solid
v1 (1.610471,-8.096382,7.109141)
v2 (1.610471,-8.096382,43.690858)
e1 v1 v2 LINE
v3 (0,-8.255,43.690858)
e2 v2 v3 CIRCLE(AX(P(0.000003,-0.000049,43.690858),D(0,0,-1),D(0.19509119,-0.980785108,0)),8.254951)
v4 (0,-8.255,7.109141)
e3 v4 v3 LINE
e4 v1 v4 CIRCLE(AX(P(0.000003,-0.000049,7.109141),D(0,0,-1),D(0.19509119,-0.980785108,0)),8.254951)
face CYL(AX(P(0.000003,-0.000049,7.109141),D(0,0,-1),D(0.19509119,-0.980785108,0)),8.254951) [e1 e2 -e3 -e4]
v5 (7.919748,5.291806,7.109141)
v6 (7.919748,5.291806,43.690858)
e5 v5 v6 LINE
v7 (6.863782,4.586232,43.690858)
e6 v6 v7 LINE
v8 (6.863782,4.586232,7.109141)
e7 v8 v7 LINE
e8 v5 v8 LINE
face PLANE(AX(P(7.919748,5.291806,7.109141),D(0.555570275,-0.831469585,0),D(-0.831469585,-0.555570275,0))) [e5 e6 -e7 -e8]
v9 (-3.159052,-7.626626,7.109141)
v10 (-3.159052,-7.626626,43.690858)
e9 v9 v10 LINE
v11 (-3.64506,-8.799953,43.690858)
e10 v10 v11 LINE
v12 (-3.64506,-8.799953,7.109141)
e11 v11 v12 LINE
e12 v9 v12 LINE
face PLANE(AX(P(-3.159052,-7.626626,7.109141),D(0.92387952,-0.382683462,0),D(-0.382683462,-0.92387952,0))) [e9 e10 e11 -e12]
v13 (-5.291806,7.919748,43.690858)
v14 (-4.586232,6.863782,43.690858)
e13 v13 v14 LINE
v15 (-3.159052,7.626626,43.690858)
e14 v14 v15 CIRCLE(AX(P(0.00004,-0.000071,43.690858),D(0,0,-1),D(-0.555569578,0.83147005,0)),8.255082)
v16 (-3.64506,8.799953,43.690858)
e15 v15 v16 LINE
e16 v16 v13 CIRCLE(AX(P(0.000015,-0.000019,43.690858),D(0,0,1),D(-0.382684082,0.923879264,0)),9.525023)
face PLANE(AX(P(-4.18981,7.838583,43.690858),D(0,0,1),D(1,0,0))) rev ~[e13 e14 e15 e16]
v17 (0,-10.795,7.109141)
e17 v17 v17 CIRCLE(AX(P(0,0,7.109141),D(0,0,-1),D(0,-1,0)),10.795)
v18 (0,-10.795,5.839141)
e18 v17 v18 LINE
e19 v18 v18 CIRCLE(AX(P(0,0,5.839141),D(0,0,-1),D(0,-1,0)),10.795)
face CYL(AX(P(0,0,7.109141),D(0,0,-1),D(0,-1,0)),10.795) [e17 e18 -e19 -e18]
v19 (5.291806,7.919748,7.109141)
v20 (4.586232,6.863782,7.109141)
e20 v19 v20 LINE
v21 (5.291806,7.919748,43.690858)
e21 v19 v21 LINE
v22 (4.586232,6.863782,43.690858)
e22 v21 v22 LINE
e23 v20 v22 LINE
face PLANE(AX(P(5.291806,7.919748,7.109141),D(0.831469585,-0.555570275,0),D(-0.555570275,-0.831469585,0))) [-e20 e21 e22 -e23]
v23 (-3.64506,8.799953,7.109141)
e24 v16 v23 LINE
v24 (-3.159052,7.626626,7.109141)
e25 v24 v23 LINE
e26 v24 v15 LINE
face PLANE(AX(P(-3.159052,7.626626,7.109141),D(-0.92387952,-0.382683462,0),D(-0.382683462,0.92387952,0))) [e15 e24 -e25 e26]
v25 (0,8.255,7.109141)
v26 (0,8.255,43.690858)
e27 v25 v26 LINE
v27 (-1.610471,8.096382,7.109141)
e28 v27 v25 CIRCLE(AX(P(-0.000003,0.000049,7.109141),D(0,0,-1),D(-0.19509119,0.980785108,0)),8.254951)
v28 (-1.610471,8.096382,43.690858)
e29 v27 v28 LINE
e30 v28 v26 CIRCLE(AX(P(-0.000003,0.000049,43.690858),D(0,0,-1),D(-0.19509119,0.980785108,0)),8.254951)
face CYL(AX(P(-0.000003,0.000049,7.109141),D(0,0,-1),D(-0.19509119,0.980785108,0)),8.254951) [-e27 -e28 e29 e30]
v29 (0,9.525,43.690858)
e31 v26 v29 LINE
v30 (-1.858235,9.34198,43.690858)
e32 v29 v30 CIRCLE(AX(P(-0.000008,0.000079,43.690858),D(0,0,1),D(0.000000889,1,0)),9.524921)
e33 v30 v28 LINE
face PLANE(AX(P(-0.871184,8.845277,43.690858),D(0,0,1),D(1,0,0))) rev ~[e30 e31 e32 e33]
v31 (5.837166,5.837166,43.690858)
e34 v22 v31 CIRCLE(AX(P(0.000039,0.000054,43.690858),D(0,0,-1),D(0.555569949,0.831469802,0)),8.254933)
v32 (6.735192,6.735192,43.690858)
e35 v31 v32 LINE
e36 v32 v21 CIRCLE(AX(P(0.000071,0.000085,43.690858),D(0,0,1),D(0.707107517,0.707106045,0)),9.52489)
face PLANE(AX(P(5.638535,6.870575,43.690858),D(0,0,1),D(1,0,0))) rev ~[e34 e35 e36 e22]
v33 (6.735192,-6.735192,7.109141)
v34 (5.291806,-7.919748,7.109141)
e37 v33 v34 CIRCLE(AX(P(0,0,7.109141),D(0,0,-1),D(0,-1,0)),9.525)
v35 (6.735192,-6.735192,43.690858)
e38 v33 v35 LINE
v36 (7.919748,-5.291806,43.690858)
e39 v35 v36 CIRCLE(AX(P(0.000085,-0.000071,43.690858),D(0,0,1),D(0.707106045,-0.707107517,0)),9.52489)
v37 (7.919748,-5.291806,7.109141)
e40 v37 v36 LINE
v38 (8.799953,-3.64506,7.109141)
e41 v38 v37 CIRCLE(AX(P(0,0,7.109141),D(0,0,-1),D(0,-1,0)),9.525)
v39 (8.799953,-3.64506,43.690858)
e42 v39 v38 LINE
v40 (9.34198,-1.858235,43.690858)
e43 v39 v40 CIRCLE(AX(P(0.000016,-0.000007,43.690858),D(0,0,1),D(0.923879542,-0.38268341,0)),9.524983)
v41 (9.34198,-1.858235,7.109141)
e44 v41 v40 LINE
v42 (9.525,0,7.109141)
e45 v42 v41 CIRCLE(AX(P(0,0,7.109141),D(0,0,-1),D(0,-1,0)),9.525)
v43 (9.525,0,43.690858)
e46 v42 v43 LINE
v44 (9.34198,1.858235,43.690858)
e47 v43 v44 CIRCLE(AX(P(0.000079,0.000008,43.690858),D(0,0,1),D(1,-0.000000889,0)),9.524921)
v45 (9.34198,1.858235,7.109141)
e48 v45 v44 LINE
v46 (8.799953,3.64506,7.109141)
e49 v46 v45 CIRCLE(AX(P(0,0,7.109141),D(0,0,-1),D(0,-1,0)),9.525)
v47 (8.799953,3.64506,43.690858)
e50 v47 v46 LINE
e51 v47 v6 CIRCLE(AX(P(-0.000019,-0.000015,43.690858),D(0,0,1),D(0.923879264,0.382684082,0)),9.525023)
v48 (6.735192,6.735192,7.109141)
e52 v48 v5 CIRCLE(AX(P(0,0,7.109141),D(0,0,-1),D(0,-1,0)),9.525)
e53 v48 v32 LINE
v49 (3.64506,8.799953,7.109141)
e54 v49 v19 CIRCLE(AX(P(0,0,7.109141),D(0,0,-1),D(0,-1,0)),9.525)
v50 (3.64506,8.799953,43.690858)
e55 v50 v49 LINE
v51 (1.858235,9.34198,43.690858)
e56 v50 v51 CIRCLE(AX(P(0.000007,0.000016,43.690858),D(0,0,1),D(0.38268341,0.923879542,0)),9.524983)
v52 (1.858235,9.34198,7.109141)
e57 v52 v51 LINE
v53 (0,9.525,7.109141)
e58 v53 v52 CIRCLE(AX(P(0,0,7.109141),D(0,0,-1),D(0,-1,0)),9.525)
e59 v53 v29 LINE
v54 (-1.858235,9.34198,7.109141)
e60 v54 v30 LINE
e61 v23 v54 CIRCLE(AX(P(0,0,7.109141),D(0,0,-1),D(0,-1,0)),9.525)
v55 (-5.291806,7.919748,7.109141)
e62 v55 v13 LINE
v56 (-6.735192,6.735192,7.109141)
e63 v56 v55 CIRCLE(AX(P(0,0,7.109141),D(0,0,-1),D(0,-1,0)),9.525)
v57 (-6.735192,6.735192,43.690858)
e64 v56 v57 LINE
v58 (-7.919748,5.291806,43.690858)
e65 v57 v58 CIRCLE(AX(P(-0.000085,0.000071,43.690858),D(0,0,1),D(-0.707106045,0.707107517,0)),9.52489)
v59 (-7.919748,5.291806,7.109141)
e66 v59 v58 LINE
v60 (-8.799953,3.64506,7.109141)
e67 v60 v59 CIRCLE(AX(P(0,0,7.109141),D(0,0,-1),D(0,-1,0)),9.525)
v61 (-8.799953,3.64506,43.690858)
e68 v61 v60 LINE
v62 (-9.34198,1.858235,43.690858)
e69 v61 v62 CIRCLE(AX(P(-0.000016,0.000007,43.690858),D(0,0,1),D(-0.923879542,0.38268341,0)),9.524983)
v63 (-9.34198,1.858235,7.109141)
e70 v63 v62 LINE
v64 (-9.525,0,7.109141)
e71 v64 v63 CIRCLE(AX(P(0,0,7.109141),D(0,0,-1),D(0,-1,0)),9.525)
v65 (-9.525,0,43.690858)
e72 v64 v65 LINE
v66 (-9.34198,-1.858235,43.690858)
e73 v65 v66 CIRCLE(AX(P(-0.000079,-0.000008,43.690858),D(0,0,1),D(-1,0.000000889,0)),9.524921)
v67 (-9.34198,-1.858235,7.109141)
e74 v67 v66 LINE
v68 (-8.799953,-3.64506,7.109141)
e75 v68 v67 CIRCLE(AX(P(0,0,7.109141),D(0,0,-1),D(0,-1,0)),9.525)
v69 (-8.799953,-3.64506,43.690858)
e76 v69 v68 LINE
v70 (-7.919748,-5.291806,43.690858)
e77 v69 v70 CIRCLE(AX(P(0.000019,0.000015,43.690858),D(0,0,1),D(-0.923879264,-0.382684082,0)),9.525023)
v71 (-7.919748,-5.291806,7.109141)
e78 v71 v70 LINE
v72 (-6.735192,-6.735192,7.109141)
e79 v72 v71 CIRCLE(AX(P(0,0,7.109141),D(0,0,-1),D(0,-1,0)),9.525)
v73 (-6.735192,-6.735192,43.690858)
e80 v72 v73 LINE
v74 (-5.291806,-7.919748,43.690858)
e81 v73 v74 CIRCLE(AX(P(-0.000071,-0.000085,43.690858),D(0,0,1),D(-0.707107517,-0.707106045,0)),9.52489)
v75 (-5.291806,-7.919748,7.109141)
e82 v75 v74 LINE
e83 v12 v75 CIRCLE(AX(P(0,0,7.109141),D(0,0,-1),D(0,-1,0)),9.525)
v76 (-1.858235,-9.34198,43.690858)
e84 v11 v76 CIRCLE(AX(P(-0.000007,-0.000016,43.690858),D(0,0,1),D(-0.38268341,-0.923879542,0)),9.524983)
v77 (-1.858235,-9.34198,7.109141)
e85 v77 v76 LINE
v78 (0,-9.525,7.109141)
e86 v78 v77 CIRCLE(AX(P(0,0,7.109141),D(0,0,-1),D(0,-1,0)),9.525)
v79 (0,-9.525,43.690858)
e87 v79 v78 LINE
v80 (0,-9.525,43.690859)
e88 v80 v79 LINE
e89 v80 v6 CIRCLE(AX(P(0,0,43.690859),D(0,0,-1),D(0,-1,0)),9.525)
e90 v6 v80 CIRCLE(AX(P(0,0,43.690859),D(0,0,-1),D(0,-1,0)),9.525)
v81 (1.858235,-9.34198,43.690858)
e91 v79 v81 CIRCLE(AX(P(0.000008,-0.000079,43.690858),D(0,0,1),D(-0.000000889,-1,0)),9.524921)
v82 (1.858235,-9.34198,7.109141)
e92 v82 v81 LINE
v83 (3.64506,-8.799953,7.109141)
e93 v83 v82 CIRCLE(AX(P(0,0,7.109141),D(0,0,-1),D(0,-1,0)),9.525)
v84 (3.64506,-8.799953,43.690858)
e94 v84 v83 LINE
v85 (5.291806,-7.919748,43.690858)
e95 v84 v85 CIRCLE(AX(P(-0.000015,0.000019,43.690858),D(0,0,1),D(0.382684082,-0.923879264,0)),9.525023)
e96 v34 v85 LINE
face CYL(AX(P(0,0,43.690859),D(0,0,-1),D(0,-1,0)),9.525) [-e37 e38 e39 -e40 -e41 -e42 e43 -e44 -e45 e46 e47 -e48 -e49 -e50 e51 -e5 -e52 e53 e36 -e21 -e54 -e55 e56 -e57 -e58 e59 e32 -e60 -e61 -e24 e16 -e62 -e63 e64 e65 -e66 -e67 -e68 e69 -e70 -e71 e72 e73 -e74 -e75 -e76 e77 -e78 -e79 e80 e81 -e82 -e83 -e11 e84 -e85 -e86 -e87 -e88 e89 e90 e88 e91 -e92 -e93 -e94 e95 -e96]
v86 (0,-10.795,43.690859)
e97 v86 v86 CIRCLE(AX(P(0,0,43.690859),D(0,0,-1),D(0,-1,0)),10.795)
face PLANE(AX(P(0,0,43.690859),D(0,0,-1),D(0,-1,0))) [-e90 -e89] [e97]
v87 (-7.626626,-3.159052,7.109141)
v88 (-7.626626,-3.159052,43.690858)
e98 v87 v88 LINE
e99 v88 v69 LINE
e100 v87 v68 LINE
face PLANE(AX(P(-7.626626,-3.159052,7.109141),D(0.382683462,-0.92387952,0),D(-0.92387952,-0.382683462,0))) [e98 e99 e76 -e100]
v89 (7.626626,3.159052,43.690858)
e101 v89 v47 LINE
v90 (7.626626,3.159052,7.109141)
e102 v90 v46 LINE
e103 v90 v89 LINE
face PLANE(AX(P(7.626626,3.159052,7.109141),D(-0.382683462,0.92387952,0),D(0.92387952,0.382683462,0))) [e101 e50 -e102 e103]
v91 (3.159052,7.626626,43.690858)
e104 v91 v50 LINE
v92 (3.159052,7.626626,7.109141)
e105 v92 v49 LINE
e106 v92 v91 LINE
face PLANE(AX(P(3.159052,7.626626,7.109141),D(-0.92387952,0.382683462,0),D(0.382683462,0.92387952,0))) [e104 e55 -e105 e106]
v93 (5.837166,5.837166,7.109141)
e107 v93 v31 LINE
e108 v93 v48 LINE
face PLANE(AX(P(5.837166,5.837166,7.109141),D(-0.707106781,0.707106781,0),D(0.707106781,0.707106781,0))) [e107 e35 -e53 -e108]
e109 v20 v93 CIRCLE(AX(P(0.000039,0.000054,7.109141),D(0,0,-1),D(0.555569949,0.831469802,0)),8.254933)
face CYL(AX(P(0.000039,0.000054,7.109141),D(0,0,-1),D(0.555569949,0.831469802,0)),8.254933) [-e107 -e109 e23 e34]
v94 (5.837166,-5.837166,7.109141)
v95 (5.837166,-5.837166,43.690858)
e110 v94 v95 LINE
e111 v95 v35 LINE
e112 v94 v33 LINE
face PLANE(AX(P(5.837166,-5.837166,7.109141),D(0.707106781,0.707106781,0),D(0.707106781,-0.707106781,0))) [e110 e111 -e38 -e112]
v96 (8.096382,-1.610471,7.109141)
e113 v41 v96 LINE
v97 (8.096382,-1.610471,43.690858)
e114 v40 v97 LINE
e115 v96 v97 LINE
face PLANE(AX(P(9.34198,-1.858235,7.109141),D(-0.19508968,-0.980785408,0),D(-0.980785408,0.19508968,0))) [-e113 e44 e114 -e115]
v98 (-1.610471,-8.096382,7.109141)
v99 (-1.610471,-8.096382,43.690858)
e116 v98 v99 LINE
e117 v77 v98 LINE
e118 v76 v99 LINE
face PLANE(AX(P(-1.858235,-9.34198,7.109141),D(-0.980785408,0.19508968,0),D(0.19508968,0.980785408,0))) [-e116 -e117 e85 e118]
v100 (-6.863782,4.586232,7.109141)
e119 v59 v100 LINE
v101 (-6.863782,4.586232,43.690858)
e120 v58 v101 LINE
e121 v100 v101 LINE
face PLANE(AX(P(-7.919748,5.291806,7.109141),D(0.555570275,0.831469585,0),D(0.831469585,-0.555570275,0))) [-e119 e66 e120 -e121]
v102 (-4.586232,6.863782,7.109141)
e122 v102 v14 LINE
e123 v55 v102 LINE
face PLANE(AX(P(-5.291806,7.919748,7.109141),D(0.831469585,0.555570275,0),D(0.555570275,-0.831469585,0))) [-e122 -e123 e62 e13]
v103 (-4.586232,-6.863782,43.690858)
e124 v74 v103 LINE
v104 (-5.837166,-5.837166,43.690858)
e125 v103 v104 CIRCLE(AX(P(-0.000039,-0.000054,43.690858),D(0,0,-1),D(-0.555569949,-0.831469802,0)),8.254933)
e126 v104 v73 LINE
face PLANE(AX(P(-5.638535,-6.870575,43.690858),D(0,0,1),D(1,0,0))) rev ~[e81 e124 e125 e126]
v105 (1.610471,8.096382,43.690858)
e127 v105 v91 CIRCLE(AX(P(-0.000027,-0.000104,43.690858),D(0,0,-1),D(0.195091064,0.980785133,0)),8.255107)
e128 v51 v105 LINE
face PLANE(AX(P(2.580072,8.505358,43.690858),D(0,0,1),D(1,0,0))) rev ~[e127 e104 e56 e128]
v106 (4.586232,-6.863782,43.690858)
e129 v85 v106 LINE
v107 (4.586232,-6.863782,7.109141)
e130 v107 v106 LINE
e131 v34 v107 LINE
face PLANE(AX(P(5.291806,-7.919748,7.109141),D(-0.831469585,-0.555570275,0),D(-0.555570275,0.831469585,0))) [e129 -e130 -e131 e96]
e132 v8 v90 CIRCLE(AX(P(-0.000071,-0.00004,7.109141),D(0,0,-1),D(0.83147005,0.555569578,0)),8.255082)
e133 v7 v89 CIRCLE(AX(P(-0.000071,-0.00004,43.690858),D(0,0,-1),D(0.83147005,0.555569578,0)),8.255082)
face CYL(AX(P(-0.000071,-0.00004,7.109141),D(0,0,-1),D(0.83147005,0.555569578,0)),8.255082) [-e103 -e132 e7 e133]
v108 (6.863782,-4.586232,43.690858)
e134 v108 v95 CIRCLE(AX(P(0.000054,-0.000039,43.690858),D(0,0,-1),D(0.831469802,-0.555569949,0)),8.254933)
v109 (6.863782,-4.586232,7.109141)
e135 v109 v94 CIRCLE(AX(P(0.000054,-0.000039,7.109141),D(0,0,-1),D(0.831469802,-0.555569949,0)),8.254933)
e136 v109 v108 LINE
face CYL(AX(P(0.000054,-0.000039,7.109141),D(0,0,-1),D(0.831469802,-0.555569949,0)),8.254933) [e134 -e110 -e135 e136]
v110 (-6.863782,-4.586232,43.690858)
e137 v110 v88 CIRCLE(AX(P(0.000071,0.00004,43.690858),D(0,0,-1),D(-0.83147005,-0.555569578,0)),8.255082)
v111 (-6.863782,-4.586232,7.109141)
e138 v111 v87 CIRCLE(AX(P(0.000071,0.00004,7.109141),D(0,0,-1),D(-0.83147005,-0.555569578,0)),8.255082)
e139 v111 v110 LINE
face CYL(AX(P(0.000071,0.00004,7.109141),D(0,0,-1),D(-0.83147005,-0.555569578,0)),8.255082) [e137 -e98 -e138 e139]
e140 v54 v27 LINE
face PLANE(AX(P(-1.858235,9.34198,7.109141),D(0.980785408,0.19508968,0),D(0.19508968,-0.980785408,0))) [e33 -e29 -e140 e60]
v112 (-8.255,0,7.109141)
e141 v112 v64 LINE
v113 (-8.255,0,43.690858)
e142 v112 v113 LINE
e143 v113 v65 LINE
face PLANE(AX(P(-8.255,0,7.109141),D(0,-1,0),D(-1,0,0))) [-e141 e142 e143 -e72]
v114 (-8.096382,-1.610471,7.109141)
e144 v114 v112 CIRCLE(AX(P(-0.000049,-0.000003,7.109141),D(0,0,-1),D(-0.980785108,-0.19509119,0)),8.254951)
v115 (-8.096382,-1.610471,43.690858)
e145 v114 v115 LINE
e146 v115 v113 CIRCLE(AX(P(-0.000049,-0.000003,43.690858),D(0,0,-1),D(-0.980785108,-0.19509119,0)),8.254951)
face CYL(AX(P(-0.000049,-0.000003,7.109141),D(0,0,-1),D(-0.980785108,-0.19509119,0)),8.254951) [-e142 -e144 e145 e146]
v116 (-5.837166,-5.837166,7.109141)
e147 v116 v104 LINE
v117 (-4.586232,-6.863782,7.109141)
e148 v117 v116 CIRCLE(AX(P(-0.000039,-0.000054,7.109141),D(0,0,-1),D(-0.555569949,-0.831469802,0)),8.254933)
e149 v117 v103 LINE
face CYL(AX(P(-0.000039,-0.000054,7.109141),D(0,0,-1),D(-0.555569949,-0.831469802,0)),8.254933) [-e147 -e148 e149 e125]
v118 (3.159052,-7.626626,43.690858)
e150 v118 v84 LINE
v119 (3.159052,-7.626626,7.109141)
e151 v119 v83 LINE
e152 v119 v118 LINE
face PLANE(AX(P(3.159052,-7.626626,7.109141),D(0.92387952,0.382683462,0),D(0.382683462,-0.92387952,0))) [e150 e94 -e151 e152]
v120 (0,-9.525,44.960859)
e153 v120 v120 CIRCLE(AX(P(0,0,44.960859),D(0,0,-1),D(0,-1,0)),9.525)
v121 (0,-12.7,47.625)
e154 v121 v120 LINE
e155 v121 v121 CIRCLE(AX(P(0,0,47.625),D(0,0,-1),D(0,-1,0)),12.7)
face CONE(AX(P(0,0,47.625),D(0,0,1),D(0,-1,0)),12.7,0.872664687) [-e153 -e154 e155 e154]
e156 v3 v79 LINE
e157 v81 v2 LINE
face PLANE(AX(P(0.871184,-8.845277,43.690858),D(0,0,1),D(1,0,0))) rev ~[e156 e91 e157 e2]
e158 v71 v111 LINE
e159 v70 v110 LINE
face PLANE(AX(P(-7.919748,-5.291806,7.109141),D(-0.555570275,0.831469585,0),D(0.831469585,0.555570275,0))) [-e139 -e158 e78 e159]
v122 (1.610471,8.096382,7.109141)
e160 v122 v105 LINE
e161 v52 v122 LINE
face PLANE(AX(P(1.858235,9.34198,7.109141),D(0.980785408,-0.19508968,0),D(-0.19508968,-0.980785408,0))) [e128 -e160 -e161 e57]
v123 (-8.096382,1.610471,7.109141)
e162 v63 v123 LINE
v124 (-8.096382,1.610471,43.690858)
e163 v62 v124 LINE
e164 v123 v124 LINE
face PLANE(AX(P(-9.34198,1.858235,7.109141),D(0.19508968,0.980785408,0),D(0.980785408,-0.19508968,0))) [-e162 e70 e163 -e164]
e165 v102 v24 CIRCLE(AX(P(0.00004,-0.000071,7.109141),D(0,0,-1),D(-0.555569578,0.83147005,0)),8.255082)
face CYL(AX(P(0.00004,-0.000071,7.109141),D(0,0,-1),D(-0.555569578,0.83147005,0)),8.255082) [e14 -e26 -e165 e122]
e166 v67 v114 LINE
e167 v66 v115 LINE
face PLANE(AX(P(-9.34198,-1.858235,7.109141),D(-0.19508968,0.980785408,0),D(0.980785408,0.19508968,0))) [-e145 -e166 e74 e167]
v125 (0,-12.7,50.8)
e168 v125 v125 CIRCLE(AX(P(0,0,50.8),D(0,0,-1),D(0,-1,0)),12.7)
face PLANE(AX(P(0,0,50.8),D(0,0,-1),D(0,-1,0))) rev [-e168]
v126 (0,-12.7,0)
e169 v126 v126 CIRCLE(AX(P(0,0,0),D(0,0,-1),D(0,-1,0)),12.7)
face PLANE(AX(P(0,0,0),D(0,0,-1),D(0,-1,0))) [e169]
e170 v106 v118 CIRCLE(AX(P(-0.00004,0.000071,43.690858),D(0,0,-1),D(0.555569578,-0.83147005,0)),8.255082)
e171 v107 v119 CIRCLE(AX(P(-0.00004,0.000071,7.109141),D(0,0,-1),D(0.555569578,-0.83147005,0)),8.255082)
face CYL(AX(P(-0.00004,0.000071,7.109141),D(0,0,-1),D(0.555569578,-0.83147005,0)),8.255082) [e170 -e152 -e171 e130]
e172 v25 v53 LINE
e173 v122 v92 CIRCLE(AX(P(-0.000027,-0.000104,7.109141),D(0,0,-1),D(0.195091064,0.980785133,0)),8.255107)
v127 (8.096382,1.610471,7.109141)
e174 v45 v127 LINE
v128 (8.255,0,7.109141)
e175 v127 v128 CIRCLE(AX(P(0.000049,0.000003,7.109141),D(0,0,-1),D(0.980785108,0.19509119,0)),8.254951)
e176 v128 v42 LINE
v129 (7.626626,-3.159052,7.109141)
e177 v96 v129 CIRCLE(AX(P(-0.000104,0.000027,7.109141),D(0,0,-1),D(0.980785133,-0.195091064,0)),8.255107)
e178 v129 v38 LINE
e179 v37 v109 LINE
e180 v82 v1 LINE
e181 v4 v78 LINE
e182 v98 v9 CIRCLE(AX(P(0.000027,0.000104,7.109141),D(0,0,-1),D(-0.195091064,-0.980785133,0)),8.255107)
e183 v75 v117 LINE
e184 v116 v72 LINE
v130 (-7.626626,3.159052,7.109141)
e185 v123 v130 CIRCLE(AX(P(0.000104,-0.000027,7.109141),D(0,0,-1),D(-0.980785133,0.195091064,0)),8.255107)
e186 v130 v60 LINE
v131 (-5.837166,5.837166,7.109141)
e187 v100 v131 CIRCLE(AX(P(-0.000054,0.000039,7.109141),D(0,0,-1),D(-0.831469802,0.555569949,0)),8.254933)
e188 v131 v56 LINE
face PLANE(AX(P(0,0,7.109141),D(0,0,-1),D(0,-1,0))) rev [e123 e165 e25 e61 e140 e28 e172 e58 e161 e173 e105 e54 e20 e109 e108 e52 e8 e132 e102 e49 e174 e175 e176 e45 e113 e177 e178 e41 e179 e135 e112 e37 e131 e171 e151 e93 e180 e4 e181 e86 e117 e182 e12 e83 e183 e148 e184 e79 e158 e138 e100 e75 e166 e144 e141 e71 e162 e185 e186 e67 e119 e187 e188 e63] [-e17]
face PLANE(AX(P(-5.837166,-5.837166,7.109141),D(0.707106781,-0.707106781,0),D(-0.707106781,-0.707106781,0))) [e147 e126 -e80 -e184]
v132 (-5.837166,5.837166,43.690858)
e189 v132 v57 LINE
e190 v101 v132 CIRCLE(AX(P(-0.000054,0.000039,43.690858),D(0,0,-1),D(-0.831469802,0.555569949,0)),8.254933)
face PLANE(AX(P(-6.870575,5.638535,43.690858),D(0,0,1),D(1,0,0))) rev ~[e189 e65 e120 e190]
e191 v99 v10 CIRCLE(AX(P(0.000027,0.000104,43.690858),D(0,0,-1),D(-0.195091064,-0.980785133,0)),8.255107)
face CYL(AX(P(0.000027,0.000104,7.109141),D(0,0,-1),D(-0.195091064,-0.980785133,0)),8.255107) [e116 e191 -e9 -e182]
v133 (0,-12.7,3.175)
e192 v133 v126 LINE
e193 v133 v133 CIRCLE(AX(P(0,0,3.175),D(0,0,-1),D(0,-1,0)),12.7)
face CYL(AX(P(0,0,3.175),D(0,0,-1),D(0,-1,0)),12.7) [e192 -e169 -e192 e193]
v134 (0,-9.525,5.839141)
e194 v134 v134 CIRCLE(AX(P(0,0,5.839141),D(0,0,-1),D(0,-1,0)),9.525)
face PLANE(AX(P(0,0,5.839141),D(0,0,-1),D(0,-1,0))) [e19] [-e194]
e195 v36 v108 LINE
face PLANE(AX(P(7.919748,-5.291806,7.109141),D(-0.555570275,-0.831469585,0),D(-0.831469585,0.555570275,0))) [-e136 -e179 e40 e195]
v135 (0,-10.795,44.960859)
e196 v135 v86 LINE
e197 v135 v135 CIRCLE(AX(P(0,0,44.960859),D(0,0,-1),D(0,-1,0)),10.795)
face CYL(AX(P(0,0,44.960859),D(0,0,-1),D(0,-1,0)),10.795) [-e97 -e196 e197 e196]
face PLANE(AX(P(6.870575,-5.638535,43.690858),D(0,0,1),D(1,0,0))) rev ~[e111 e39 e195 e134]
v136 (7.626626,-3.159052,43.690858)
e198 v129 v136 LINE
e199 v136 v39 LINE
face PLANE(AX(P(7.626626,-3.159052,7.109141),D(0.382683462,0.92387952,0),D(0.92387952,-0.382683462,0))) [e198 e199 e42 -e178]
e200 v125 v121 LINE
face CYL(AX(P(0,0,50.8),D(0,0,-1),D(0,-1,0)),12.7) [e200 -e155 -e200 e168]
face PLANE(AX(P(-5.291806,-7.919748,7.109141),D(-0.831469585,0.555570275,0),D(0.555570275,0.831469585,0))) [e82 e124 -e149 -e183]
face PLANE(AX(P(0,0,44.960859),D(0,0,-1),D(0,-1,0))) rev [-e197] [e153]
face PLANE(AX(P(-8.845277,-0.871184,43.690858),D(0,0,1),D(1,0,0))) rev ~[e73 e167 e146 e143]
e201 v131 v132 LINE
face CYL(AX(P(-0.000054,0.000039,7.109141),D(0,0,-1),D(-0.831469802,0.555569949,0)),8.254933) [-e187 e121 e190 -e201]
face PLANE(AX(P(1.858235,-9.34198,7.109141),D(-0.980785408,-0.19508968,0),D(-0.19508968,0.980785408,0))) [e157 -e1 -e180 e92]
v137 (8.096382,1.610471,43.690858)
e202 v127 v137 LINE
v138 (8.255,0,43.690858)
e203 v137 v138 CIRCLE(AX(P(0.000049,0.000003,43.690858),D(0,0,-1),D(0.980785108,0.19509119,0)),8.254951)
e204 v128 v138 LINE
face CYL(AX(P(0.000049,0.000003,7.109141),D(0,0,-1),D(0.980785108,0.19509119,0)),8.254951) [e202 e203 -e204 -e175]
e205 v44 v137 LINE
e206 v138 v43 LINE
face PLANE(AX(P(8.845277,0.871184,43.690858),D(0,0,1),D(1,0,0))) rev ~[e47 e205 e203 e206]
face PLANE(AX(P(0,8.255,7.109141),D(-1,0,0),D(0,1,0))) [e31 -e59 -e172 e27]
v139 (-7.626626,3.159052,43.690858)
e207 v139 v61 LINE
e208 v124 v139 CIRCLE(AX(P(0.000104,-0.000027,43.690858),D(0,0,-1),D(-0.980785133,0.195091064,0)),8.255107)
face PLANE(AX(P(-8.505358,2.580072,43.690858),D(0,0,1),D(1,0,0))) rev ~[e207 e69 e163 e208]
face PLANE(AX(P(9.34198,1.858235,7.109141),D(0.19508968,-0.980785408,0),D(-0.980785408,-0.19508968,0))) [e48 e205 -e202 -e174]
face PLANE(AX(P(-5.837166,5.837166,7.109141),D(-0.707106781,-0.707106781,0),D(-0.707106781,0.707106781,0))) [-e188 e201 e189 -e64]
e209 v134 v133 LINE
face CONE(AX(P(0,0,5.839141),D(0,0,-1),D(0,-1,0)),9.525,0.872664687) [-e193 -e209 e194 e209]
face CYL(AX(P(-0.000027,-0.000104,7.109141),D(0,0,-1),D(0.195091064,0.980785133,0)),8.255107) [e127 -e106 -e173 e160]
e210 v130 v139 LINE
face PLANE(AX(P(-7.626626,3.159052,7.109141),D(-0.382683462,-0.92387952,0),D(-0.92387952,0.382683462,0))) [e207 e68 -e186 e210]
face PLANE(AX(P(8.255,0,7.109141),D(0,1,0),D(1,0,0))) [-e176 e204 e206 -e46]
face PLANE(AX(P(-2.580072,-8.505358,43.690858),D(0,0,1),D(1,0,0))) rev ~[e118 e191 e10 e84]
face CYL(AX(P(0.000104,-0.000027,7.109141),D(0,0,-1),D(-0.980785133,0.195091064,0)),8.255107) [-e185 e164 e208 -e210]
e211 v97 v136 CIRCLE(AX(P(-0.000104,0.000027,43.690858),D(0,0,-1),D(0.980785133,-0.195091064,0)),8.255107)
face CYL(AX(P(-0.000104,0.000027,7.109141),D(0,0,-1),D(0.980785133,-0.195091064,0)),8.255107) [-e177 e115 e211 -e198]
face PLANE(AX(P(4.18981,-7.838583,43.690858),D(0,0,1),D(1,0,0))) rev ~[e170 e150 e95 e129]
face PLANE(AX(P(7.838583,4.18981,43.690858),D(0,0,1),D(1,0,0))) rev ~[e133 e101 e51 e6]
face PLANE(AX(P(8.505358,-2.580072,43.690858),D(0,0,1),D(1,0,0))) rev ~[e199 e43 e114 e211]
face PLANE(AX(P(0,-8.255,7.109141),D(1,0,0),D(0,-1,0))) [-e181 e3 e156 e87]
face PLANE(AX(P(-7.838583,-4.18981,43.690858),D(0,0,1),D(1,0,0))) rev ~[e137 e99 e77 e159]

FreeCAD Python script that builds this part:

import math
import FreeCAD as App
import Part
import Sketcher
Q = App.Units.Quantity


def add_polygon(sketch, points):
    """Adds a closed chain of lines whose ends are joined by coincident constraints."""
    first, n = sketch.GeometryCount, len(points)
    for a, b in zip(points, points[1:] + points[:1]):
        sketch.addGeometry(Part.LineSegment(App.Vector(*a, 0), App.Vector(*b, 0)), False)
    for i in range(n):
        sketch.addConstraint(Sketcher.Constraint("Coincident", first + i, 2, first + (i + 1) % n, 1))

doc = App.newDocument("Part")
body = doc.addObject("PartDesign::Body", "Body")

# Sketch on YZ plane
sketch1 = doc.addObject("Sketcher::SketchObject", "Sketch")
body.addObject(sketch1)
sketch1.AttachmentSupport = (doc.YZ_Plane, [""])
sketch1.MapMode = "FlatFace"
add_polygon(sketch1, [(-12.7, 0), (0, 0), (0, 50.8), (-12.7, 50.8), (-12.7, 47.625), (-9.525, 44.960859), (-10.795, 44.960859), (-10.795, 43.690859), (-9.525, 43.690859), (-9.525, 7.109141), (-10.795, 7.109141), (-10.795, 5.839141), (-9.525, 5.839141), (-12.7, 3.175)])  # lines 0-13
sketch1.addConstraint(Sketcher.Constraint("Horizontal", 0))
sketch1.addConstraint(Sketcher.Constraint("Vertical", 1))
sketch1.addConstraint(Sketcher.Constraint("Horizontal", 2))
sketch1.addConstraint(Sketcher.Constraint("Vertical", 3))
sketch1.addConstraint(Sketcher.Constraint("Horizontal", 5))
sketch1.addConstraint(Sketcher.Constraint("Vertical", 6))
sketch1.addConstraint(Sketcher.Constraint("Horizontal", 7))
sketch1.addConstraint(Sketcher.Constraint("Vertical", 8))
sketch1.addConstraint(Sketcher.Constraint("Horizontal", 9))
sketch1.addConstraint(Sketcher.Constraint("Vertical", 10))
sketch1.addConstraint(Sketcher.Constraint("Horizontal", 11))
sketch1.addConstraint(Sketcher.Constraint("Vertical", 13))
sketch1.addConstraint(Sketcher.Constraint("Coincident", 0, 2, -1, 1))
sketch1.addConstraint(Sketcher.Constraint("Vertical", 4, 2, 7, 2))
sketch1.addConstraint(Sketcher.Constraint("Vertical", 6, 2, 9, 2))
sketch1.addConstraint(Sketcher.Constraint("Vertical", 8, 2, 11, 2))
sketch1.addConstraint(Sketcher.Constraint("Vertical", 3, 2, 12, 2))
sketch1.addConstraint(Sketcher.Constraint("Equal", 11, 6))
sketch1.addConstraint(Sketcher.Constraint("Equal", 6, 10))
sketch1.addConstraint(Sketcher.Constraint("Equal", 3, 13))
sketch1.addConstraint(Sketcher.Constraint("Equal", 4, 12))
sketch1.addConstraint(Sketcher.Constraint("DistanceY", 1, 1, 1, 2, Q("2 in")))
sketch1.addConstraint(Sketcher.Constraint("DistanceX", 0, 1, 0, 2, Q("0.5 in")))
sketch1.addConstraint(Sketcher.Constraint("Angle", 4, Q("-39.999997 deg")))
sketch1.addConstraint(Sketcher.Constraint("DistanceX", 5, 2, 5, 1, Q("0.05 in")))
sketch1.addConstraint(Sketcher.Constraint("DistanceY", 3, 2, 3, 1, Q("0.125 in")))
sketch1.addConstraint(Sketcher.Constraint("DistanceX", 4, 2, -1, 1, Q("0.375 in")))
revolution = doc.addObject("PartDesign::Revolution", "Revolution")
body.addObject(revolution)
revolution.Profile = sketch1
revolution.ReferenceAxis = (sketch1, ["V_Axis"])
revolution.Angle = 360

# Sketch on XY plane
sketch2 = doc.addObject("Sketcher::SketchObject", "Sketch001")
body.addObject(sketch2)
sketch2.AttachmentSupport = (doc.XY_Plane, [""])
sketch2.MapMode = "FlatFace"
sketch2.AttachmentOffset = App.Placement(App.Vector(0, 0, 7.109141), App.Rotation())
sketch2.addGeometry(Part.LineSegment(App.Vector(3.159052, -7.626626, 0), App.Vector(3.64506, -8.799953, 0)), False)
sketch2.addGeometry(Part.ArcOfCircle(Part.Circle(App.Vector(-0.000015, 0.000019, 0), App.Vector(0, 0, 1), 9.525023), math.radians(-67.49996), math.radians(-56.24999)), False)
sketch2.addGeometry(Part.LineSegment(App.Vector(5.291806, -7.919748, 0), App.Vector(4.586232, -6.863782, 0)), False)
sketch2.addGeometry(Part.ArcOfCircle(Part.Circle(App.Vector(-0.00004, 0.000071, 0), App.Vector(0, 0, 1), 8.255082), math.radians(-67.49993), math.radians(-56.250045)), False)
sketch2.addGeometry(Part.LineSegment(App.Vector(0, -8.255, 0), App.Vector(0, -9.525, 0)), False)
sketch2.addGeometry(Part.ArcOfCircle(Part.Circle(App.Vector(0.000008, -0.000079, 0), App.Vector(0, 0, 1), 9.524921), math.radians(-90.000051), math.radians(-78.74996)), False)
sketch2.addGeometry(Part.LineSegment(App.Vector(1.858235, -9.34198, 0), App.Vector(1.610471, -8.096382, 0)), False)
sketch2.addGeometry(Part.ArcOfCircle(Part.Circle(App.Vector(0.000003, -0.000049, 0), App.Vector(0, 0, 1), 8.254951), math.radians(-90.000019), math.radians(-78.749949)), False)
sketch2.addGeometry(Part.ArcOfCircle(Part.Circle(App.Vector(0.000054, -0.000039, 0), App.Vector(0, 0, 1), 8.254933), math.radians(-45.000074), math.radians(-33.74998)), False)
sketch2.addGeometry(Part.LineSegment(App.Vector(5.837166, -5.837166, 0), App.Vector(6.735192, -6.735192, 0)), False)
sketch2.addGeometry(Part.ArcOfCircle(Part.Circle(App.Vector(0.000085, -0.000071, 0), App.Vector(0, 0, 1), 9.52489), math.radians(-45.00006), math.radians(-33.749927)), False)
sketch2.addGeometry(Part.LineSegment(App.Vector(7.919748, -5.291806, 0), App.Vector(6.863782, -4.586232, 0)), False)
sketch2.addGeometry(Part.ArcOfCircle(Part.Circle(App.Vector(-0.000104, 0.000027, 0), App.Vector(0, 0, 1), 8.255107), math.radians(-22.499895), math.radians(-11.250043)), False)
sketch2.addGeometry(Part.LineSegment(App.Vector(7.626626, -3.159052, 0), App.Vector(8.799953, -3.64506, 0)), False)
sketch2.addGeometry(Part.ArcOfCircle(Part.Circle(App.Vector(0.000016, -0.000007, 0), App.Vector(0, 0, 1), 9.524983), math.radians(-22.499999), math.radians(-11.249976)), False)
sketch2.addGeometry(Part.LineSegment(App.Vector(9.34198, -1.858235, 0), App.Vector(8.096382, -1.610471, 0)), False)
sketch2.addGeometry(Part.LineSegment(App.Vector(-7.626626, -3.159052, 0), App.Vector(-8.799953, -3.64506, 0)), False)
sketch2.addGeometry(Part.ArcOfCircle(Part.Circle(App.Vector(0.000019, 0.000015, 0), App.Vector(0, 0, 1), 9.525023), math.radians(-157.49996), math.radians(-146.24999)), False)
sketch2.addGeometry(Part.LineSegment(App.Vector(-7.919748, -5.291806, 0), App.Vector(-6.863782, -4.586232, 0)), False)
sketch2.addGeometry(Part.ArcOfCircle(Part.Circle(App.Vector(0.000071, 0.00004, 0), App.Vector(0, 0, 1), 8.255082), math.radians(-157.49993), math.radians(-146.250045)), False)
sketch2.addGeometry(Part.LineSegment(App.Vector(-8.255, 0, 0), App.Vector(-9.525, 0, 0)), False)
sketch2.addGeometry(Part.ArcOfCircle(Part.Circle(App.Vector(-0.000079, -0.000008, 0), App.Vector(0, 0, 1), 9.524921), math.radians(179.999949), math.radians(191.25004)), False)
sketch2.addGeometry(Part.LineSegment(App.Vector(-9.34198, -1.858235, 0), App.Vector(-8.096382, -1.610471, 0)), False)
sketch2.addGeometry(Part.ArcOfCircle(Part.Circle(App.Vector(-0.000049, -0.000003, 0), App.Vector(0, 0, 1), 8.254951), math.radians(179.999981), math.radians(191.250051)), False)
sketch2.addGeometry(Part.LineSegment(App.Vector(-5.291806, -7.919748, 0), App.Vector(-4.586232, -6.863782, 0)), False)
sketch2.addGeometry(Part.ArcOfCircle(Part.Circle(App.Vector(-0.000039, -0.000054, 0), App.Vector(0, 0, 1), 8.254933), math.radians(-135.000074), math.radians(-123.74998)), False)
sketch2.addGeometry(Part.LineSegment(App.Vector(-5.837166, -5.837166, 0), App.Vector(-6.735192, -6.735192, 0)), False)
sketch2.addGeometry(Part.ArcOfCircle(Part.Circle(App.Vector(-0.000071, -0.000085, 0), App.Vector(0, 0, 1), 9.52489), math.radians(-135.00006), math.radians(-123.749927)), False)
sketch2.addGeometry(Part.LineSegment(App.Vector(-3.159052, -7.626626, 0), App.Vector(-3.64506, -8.799953, 0)), False)
sketch2.addGeometry(Part.ArcOfCircle(Part.Circle(App.Vector(-0.000007, -0.000016, 0), App.Vector(0, 0, 1), 9.524983), math.radians(-112.499999), math.radians(-101.249976)), False)
sketch2.addGeometry(Part.LineSegment(App.Vector(-1.858235, -9.34198, 0), App.Vector(-1.610471, -8.096382, 0)), False)
sketch2.addGeometry(Part.ArcOfCircle(Part.Circle(App.Vector(0.000027, 0.000104, 0), App.Vector(0, 0, 1), 8.255107), math.radians(-112.499895), math.radians(-101.250043)), False)
sketch2.addGeometry(Part.LineSegment(App.Vector(-3.159052, 7.626626, 0), App.Vector(-3.64506, 8.799953, 0)), False)
sketch2.addGeometry(Part.ArcOfCircle(Part.Circle(App.Vector(0.000015, -0.000019, 0), App.Vector(0, 0, 1), 9.525023), math.radians(112.50004), math.radians(123.75001)), False)
sketch2.addGeometry(Part.LineSegment(App.Vector(-5.291806, 7.919748, 0), App.Vector(-4.586232, 6.863782, 0)), False)
sketch2.addGeometry(Part.ArcOfCircle(Part.Circle(App.Vector(0.00004, -0.000071, 0), App.Vector(0, 0, 1), 8.255082), math.radians(112.50007), math.radians(123.749955)), False)
sketch2.addGeometry(Part.LineSegment(App.Vector(0, 8.255, 0), App.Vector(0, 9.525, 0)), False)
sketch2.addGeometry(Part.ArcOfCircle(Part.Circle(App.Vector(-0.000008, 0.000079, 0), App.Vector(0, 0, 1), 9.524921), math.radians(89.999949), math.radians(101.25004)), False)
sketch2.addGeometry(Part.LineSegment(App.Vector(-1.858235, 9.34198, 0), App.Vector(-1.610471, 8.096382, 0)), False)
sketch2.addGeometry(Part.ArcOfCircle(Part.Circle(App.Vector(-0.000003, 0.000049, 0), App.Vector(0, 0, 1), 8.254951), math.radians(89.999981), math.radians(101.250051)), False)
sketch2.addGeometry(Part.LineSegment(App.Vector(-7.919748, 5.291806, 0), App.Vector(-6.863782, 4.586232, 0)), False)
sketch2.addGeometry(Part.ArcOfCircle(Part.Circle(App.Vector(-0.000054, 0.000039, 0), App.Vector(0, 0, 1), 8.254933), math.radians(134.999926), math.radians(146.25002)), False)
sketch2.addGeometry(Part.LineSegment(App.Vector(-5.837166, 5.837166, 0), App.Vector(-6.735192, 6.735192, 0)), False)
sketch2.addGeometry(Part.ArcOfCircle(Part.Circle(App.Vector(-0.000085, 0.000071, 0), App.Vector(0, 0, 1), 9.52489), math.radians(134.99994), math.radians(146.250073)), False)
sketch2.addGeometry(Part.LineSegment(App.Vector(-7.626626, 3.159052, 0), App.Vector(-8.799953, 3.64506, 0)), False)
sketch2.addGeometry(Part.ArcOfCircle(Part.Circle(App.Vector(-0.000016, 0.000007, 0), App.Vector(0, 0, 1), 9.524983), math.radians(157.500001), math.radians(168.750024)), False)
sketch2.addGeometry(Part.LineSegment(App.Vector(-9.34198, 1.858235, 0), App.Vector(-8.096382, 1.610471, 0)), False)
sketch2.addGeometry(Part.ArcOfCircle(Part.Circle(App.Vector(0.000104, -0.000027, 0), App.Vector(0, 0, 1), 8.255107), math.radians(157.500105), math.radians(168.749957)), False)
sketch2.addGeometry(Part.LineSegment(App.Vector(7.626626, 3.159052, 0), App.Vector(8.799953, 3.64506, 0)), False)
sketch2.addGeometry(Part.ArcOfCircle(Part.Circle(App.Vector(-0.000019, -0.000015, 0), App.Vector(0, 0, 1), 9.525023), math.radians(22.50004), math.radians(33.75001)), False)
sketch2.addGeometry(Part.LineSegment(App.Vector(7.919748, 5.291806, 0), App.Vector(6.863782, 4.586232, 0)), False)
sketch2.addGeometry(Part.ArcOfCircle(Part.Circle(App.Vector(-0.000071, -0.00004, 0), App.Vector(0, 0, 1), 8.255082), math.radians(22.50007), math.radians(33.749955)), False)
sketch2.addGeometry(Part.LineSegment(App.Vector(8.255, 0, 0), App.Vector(9.525, 0, 0)), False)
sketch2.addGeometry(Part.ArcOfCircle(Part.Circle(App.Vector(0.000079, 0.000008, 0), App.Vector(0, 0, 1), 9.524921), math.radians(-0.000051), math.radians(11.25004)), False)
sketch2.addGeometry(Part.LineSegment(App.Vector(9.34198, 1.858235, 0), App.Vector(8.096382, 1.610471, 0)), False)
sketch2.addGeometry(Part.ArcOfCircle(Part.Circle(App.Vector(0.000049, 0.000003, 0), App.Vector(0, 0, 1), 8.254951), math.radians(-0.000019), math.radians(11.250051)), False)
sketch2.addGeometry(Part.LineSegment(App.Vector(5.291806, 7.919748, 0), App.Vector(4.586232, 6.863782, 0)), False)
sketch2.addGeometry(Part.ArcOfCircle(Part.Circle(App.Vector(0.000039, 0.000054, 0), App.Vector(0, 0, 1), 8.254933), math.radians(44.999926), math.radians(56.25002)), False)
sketch2.addGeometry(Part.LineSegment(App.Vector(5.837166, 5.837166, 0), App.Vector(6.735192, 6.735192, 0)), False)
sketch2.addGeometry(Part.ArcOfCircle(Part.Circle(App.Vector(0.000071, 0.000085, 0), App.Vector(0, 0, 1), 9.52489), math.radians(44.99994), math.radians(56.250073)), False)
sketch2.addGeometry(Part.LineSegment(App.Vector(3.159052, 7.626626, 0), App.Vector(3.64506, 8.799953, 0)), False)
sketch2.addGeometry(Part.ArcOfCircle(Part.Circle(App.Vector(0.000007, 0.000016, 0), App.Vector(0, 0, 1), 9.524983), math.radians(67.500001), math.radians(78.750024)), False)
sketch2.addGeometry(Part.LineSegment(App.Vector(1.858235, 9.34198, 0), App.Vector(1.610471, 8.096382, 0)), False)
sketch2.addGeometry(Part.ArcOfCircle(Part.Circle(App.Vector(-0.000027, -0.000104, 0), App.Vector(0, 0, 1), 8.255107), math.radians(67.500105), math.radians(78.749957)), False)
sketch2.addConstraint(Sketcher.Constraint("Coincident", 0, 2, 1, 1))
sketch2.addConstraint(Sketcher.Constraint("Coincident", 1, 2, 2, 1))
sketch2.addConstraint(Sketcher.Constraint("Coincident", 2, 2, 3, 2))
sketch2.addConstraint(Sketcher.Constraint("Coincident", 3, 1, 0, 1))
sketch2.addConstraint(Sketcher.Constraint("Coincident", 4, 2, 5, 1))
sketch2.addConstraint(Sketcher.Constraint("Coincident", 5, 2, 6, 1))
sketch2.addConstraint(Sketcher.Constraint("Coincident", 6, 2, 7, 2))
sketch2.addConstraint(Sketcher.Constraint("Coincident", 7, 1, 4, 1))
sketch2.addConstraint(Sketcher.Constraint("Coincident", 8, 1, 9, 1))
sketch2.addConstraint(Sketcher.Constraint("Coincident", 9, 2, 10, 1))
sketch2.addConstraint(Sketcher.Constraint("Coincident", 10, 2, 11, 1))
sketch2.addConstraint(Sketcher.Constraint("Coincident", 11, 2, 8, 2))
sketch2.addConstraint(Sketcher.Constraint("Coincident", 12, 1, 13, 1))
sketch2.addConstraint(Sketcher.Constraint("Coincident", 13, 2, 14, 1))
sketch2.addConstraint(Sketcher.Constraint("Coincident", 14, 2, 15, 1))
sketch2.addConstraint(Sketcher.Constraint("Coincident", 15, 2, 12, 2))
sketch2.addConstraint(Sketcher.Constraint("Coincident", 16, 2, 17, 1))
sketch2.addConstraint(Sketcher.Constraint("Coincident", 17, 2, 18, 1))
sketch2.addConstraint(Sketcher.Constraint("Coincident", 18, 2, 19, 2))
sketch2.addConstraint(Sketcher.Constraint("Coincident", 19, 1, 16, 1))
sketch2.addConstraint(Sketcher.Constraint("Coincident", 20, 2, 21, 1))
sketch2.addConstraint(Sketcher.Constraint("Coincident", 21, 2, 22, 1))
sketch2.addConstraint(Sketcher.Constraint("Coincident", 22, 2, 23, 2))
sketch2.addConstraint(Sketcher.Constraint("Coincident", 23, 1, 20, 1))
sketch2.addConstraint(Sketcher.Constraint("Coincident", 24, 2, 25, 2))
sketch2.addConstraint(Sketcher.Constraint("Coincident", 25, 1, 26, 1))
sketch2.addConstraint(Sketcher.Constraint("Coincident", 26, 2, 27, 1))
sketch2.addConstraint(Sketcher.Constraint("Coincident", 27, 2, 24, 1))
sketch2.addConstraint(Sketcher.Constraint("Coincident", 28, 2, 29, 1))
sketch2.addConstraint(Sketcher.Constraint("Coincident", 29, 2, 30, 1))
sketch2.addConstraint(Sketcher.Constraint("Coincident", 30, 2, 31, 2))
sketch2.addConstraint(Sketcher.Constraint("Coincident", 31, 1, 28, 1))
sketch2.addConstraint(Sketcher.Constraint("Coincident", 32, 2, 33, 1))
sketch2.addConstraint(Sketcher.Constraint("Coincident", 33, 2, 34, 1))
sketch2.addConstraint(Sketcher.Constraint("Coincident", 34, 2, 35, 2))
sketch2.addConstraint(Sketcher.Constraint("Coincident", 35, 1, 32, 1))
sketch2.addConstraint(Sketcher.Constraint("Coincident", 36, 2, 37, 1))
sketch2.addConstraint(Sketcher.Constraint("Coincident", 37, 2, 38, 1))
sketch2.addConstraint(Sketcher.Constraint("Coincident", 38, 2, 39, 2))
sketch2.addConstraint(Sketcher.Constraint("Coincident", 39, 1, 36, 1))
sketch2.addConstraint(Sketcher.Constraint("Coincident", 40, 2, 41, 2))
sketch2.addConstraint(Sketcher.Constraint("Coincident", 41, 1, 42, 1))
sketch2.addConstraint(Sketcher.Constraint("Coincident", 42, 2, 43, 1))
sketch2.addConstraint(Sketcher.Constraint("Coincident", 43, 2, 40, 1))
sketch2.addConstraint(Sketcher.Constraint("Coincident", 44, 2, 45, 1))
sketch2.addConstraint(Sketcher.Constraint("Coincident", 45, 2, 46, 1))
sketch2.addConstraint(Sketcher.Constraint("Coincident", 46, 2, 47, 2))
sketch2.addConstraint(Sketcher.Constraint("Coincident", 47, 1, 44, 1))
sketch2.addConstraint(Sketcher.Constraint("Coincident", 48, 2, 49, 1))
sketch2.addConstraint(Sketcher.Constraint("Coincident", 49, 2, 50, 1))
sketch2.addConstraint(Sketcher.Constraint("Coincident", 50, 2, 51, 2))
sketch2.addConstraint(Sketcher.Constraint("Coincident", 51, 1, 48, 1))
sketch2.addConstraint(Sketcher.Constraint("Coincident", 52, 2, 53, 1))
sketch2.addConstraint(Sketcher.Constraint("Coincident", 53, 2, 54, 1))
sketch2.addConstraint(Sketcher.Constraint("Coincident", 54, 2, 55, 2))
sketch2.addConstraint(Sketcher.Constraint("Coincident", 55, 1, 52, 1))
sketch2.addConstraint(Sketcher.Constraint("Coincident", 56, 2, 57, 2))
sketch2.addConstraint(Sketcher.Constraint("Coincident", 57, 1, 58, 1))
sketch2.addConstraint(Sketcher.Constraint("Coincident", 58, 2, 59, 1))
sketch2.addConstraint(Sketcher.Constraint("Coincident", 59, 2, 56, 1))
sketch2.addConstraint(Sketcher.Constraint("Coincident", 60, 2, 61, 1))
sketch2.addConstraint(Sketcher.Constraint("Coincident", 61, 2, 62, 1))
sketch2.addConstraint(Sketcher.Constraint("Coincident", 62, 2, 63, 2))
sketch2.addConstraint(Sketcher.Constraint("Coincident", 63, 1, 60, 1))
sketch2.addConstraint(Sketcher.Constraint("Vertical", 4))
sketch2.addConstraint(Sketcher.Constraint("Horizontal", 20))
sketch2.addConstraint(Sketcher.Constraint("Vertical", 36))
sketch2.addConstraint(Sketcher.Constraint("Horizontal", 52))
sketch2.addConstraint(Sketcher.Constraint("Equal", 1, 17))
sketch2.addConstraint(Sketcher.Constraint("Equal", 3, 19))
sketch2.addConstraint(Sketcher.Constraint("Equal", 5, 21))
sketch2.addConstraint(Sketcher.Constraint("Equal", 7, 23))
sketch2.addConstraint(Sketcher.Constraint("Equal", 8, 25))
sketch2.addConstraint(Sketcher.Constraint("Equal", 10, 27))
sketch2.addConstraint(Sketcher.Constraint("Equal", 14, 29))
sketch2.addConstraint(Sketcher.Constraint("Equal", 12, 31))
sketch2.addConstraint(Sketcher.Constraint("Equal", 17, 33))
sketch2.addConstraint(Sketcher.Constraint("Equal", 19, 35))
sketch2.addConstraint(Sketcher.Constraint("Equal", 21, 37))
sketch2.addConstraint(Sketcher.Constraint("Equal", 23, 39))
sketch2.addConstraint(Sketcher.Constraint("Equal", 25, 41))
sketch2.addConstraint(Sketcher.Constraint("Equal", 27, 43))
sketch2.addConstraint(Sketcher.Constraint("Equal", 29, 45))
sketch2.addConstraint(Sketcher.Constraint("Equal", 31, 47))
sketch2.addConstraint(Sketcher.Constraint("Equal", 33, 49))
sketch2.addConstraint(Sketcher.Constraint("Equal", 35, 51))
sketch2.addConstraint(Sketcher.Constraint("Equal", 37, 53))
sketch2.addConstraint(Sketcher.Constraint("Equal", 39, 55))
sketch2.addConstraint(Sketcher.Constraint("Equal", 41, 57))
sketch2.addConstraint(Sketcher.Constraint("Equal", 43, 59))
sketch2.addConstraint(Sketcher.Constraint("Equal", 45, 61))
sketch2.addConstraint(Sketcher.Constraint("Equal", 47, 63))
sketch2.addConstraint(Sketcher.Constraint("Symmetric", 1, 3, 33, 3, -1, 1))
sketch2.addConstraint(Sketcher.Constraint("Symmetric", 3, 3, 35, 3, -1, 1))
sketch2.addConstraint(Sketcher.Constraint("Symmetric", 5, 3, 37, 3, -1, 1))
sketch2.addConstraint(Sketcher.Constraint("Symmetric", 7, 3, 39, 3, -1, 1))
sketch2.addConstraint(Sketcher.Constraint("Symmetric", 8, 3, 41, 3, -1, 1))
sketch2.addConstraint(Sketcher.Constraint("Symmetric", 10, 3, 43, 3, -1, 1))
sketch2.addConstraint(Sketcher.Constraint("Symmetric", 14, 3, 45, 3, -1, 1))
sketch2.addConstraint(Sketcher.Constraint("Symmetric", 12, 3, 47, 3, -1, 1))
sketch2.addConstraint(Sketcher.Constraint("Symmetric", 17, 3, 49, 3, -1, 1))
sketch2.addConstraint(Sketcher.Constraint("Symmetric", 19, 3, 51, 3, -1, 1))
sketch2.addConstraint(Sketcher.Constraint("Symmetric", 21, 3, 53, 3, -1, 1))
sketch2.addConstraint(Sketcher.Constraint("Symmetric", 23, 3, 55, 3, -1, 1))
sketch2.addConstraint(Sketcher.Constraint("Symmetric", 25, 3, 57, 3, -1, 1))
sketch2.addConstraint(Sketcher.Constraint("Symmetric", 27, 3, 59, 3, -1, 1))
sketch2.addConstraint(Sketcher.Constraint("Symmetric", 29, 3, 61, 3, -1, 1))
sketch2.addConstraint(Sketcher.Constraint("Symmetric", 31, 3, 63, 3, -1, 1))
sketch2.addConstraint(Sketcher.Constraint("Symmetric", 1, 3, 17, 3, -2))
sketch2.addConstraint(Sketcher.Constraint("Symmetric", 29, 3, 33, 3, -2))
sketch2.addConstraint(Sketcher.Constraint("Symmetric", 17, 3, 45, 3, -2))
sketch2.addConstraint(Sketcher.Constraint("Symmetric", 13, 2, 16, 2, -2))
sketch2.addConstraint(Sketcher.Constraint("Symmetric", 10, 2, 17, 2, -2))
sketch2.addConstraint(Sketcher.Constraint("Symmetric", 11, 2, 18, 2, -2))
sketch2.addConstraint(Sketcher.Constraint("Symmetric", 12, 1, 19, 1, -2))
sketch2.addConstraint(Sketcher.Constraint("Symmetric", 14, 2, 21, 2, -2))
sketch2.addConstraint(Sketcher.Constraint("Symmetric", 15, 2, 22, 2, -2))
sketch2.addConstraint(Sketcher.Constraint("Symmetric", 2, 2, 24, 2, -2))
sketch2.addConstraint(Sketcher.Constraint("Symmetric", 8, 1, 25, 1, -2))
sketch2.addConstraint(Sketcher.Constraint("Symmetric", 9, 2, 26, 2, -2))
sketch2.addConstraint(Sketcher.Constraint("Symmetric", 1, 2, 27, 2, -2))
sketch2.addConstraint(Sketcher.Constraint("Symmetric", 0, 2, 28, 2, -2))
sketch2.addConstraint(Sketcher.Constraint("Symmetric", 5, 2, 29, 2, -2))
sketch2.addConstraint(Sketcher.Constraint("Symmetric", 6, 2, 30, 2, -2))
sketch2.addConstraint(Sketcher.Constraint("Symmetric", 3, 1, 31, 1, -2))
sketch2.addConstraint(Sketcher.Constraint("PointOnObject", 4, 2, -2))
sketch2.addConstraint(Sketcher.Constraint("PointOnObject", 20, 2, -1))
sketch2.addConstraint(Sketcher.Constraint("PointOnObject", 36, 2, -2))
sketch2.addConstraint(Sketcher.Constraint("PointOnObject", 52, 2, -1))
sketch2.addConstraint(Sketcher.Constraint("Perpendicular", 0, 16))
sketch2.addConstraint(Sketcher.Constraint("Perpendicular", 2, 18))
sketch2.addConstraint(Sketcher.Constraint("Perpendicular", 6, 22))
sketch2.addConstraint(Sketcher.Constraint("Perpendicular", 9, 26))
sketch2.addConstraint(Sketcher.Constraint("Perpendicular", 16, 32))
sketch2.addConstraint(Sketcher.Constraint("Perpendicular", 18, 34))
sketch2.addConstraint(Sketcher.Constraint("Perpendicular", 22, 38))
sketch2.addConstraint(Sketcher.Constraint("Perpendicular", 24, 40))
sketch2.addConstraint(Sketcher.Constraint("Perpendicular", 26, 42))
sketch2.addConstraint(Sketcher.Constraint("Perpendicular", 28, 44))
sketch2.addConstraint(Sketcher.Constraint("Perpendicular", 30, 46))
sketch2.addConstraint(Sketcher.Constraint("Perpendicular", 32, 48))
sketch2.addConstraint(Sketcher.Constraint("Perpendicular", 34, 50))
sketch2.addConstraint(Sketcher.Constraint("Perpendicular", 38, 54))
sketch2.addConstraint(Sketcher.Constraint("Perpendicular", 40, 56))
sketch2.addConstraint(Sketcher.Constraint("Perpendicular", 42, 58))
sketch2.addConstraint(Sketcher.Constraint("Perpendicular", 44, 60))
sketch2.addConstraint(Sketcher.Constraint("Perpendicular", 46, 62))
sketch2.addConstraint(Sketcher.Constraint("Horizontal", 14, 3, 21, 3))
sketch2.addConstraint(Sketcher.Constraint("Horizontal", 10, 3, 35, 3))
sketch2.addConstraint(Sketcher.Constraint("Horizontal", 19, 3, 41, 3))
sketch2.addConstraint(Sketcher.Constraint("Horizontal", 44, 2, 48, 2))
sketch2.addConstraint(Sketcher.Constraint("Horizontal", 43, 2, 49, 2))
sketch2.addConstraint(Sketcher.Constraint("Horizontal", 45, 2, 53, 2))
sketch2.addConstraint(Sketcher.Constraint("Horizontal", 34, 2, 56, 2))
sketch2.addConstraint(Sketcher.Constraint("Horizontal", 41, 1, 57, 1))
sketch2.addConstraint(Sketcher.Constraint("Horizontal", 32, 2, 60, 2))
sketch2.addConstraint(Sketcher.Constraint("Horizontal", 37, 2, 61, 2))
sketch2.addConstraint(Sketcher.Constraint("Vertical", 3, 3, 25, 3))
sketch2.addConstraint(Sketcher.Constraint("Vertical", 29, 3, 37, 3))
sketch2.addConstraint(Sketcher.Constraint("Vertical", 27, 3, 51, 3))
sketch2.addConstraint(Sketcher.Constraint("Vertical", 28, 2, 32, 2))
sketch2.addConstraint(Sketcher.Constraint("Vertical", 27, 2, 33, 2))
sketch2.addConstraint(Sketcher.Constraint("Vertical", 29, 2, 37, 2))
sketch2.addConstraint(Sketcher.Constraint("Vertical", 18, 2, 40, 2))
sketch2.addConstraint(Sketcher.Constraint("Vertical", 25, 1, 41, 1))
sketch2.addConstraint(Sketcher.Constraint("Vertical", 16, 2, 44, 2))
sketch2.addConstraint(Sketcher.Constraint("Vertical", 21, 2, 45, 2))
sketch2.addConstraint(Sketcher.Constraint("Equal", 52, 4))
sketch2.addConstraint(Sketcher.Constraint("Equal", 0, 2))
sketch2.addConstraint(Sketcher.Constraint("Equal", 2, 6))
sketch2.addConstraint(Sketcher.Constraint("Equal", 6, 9))
sketch2.addConstraint(Sketcher.Constraint("Equal", 13, 15))
sketch2.addConstraint(Sketcher.Constraint("DistanceX", 20, 2, 20, 1, Q("0.05 in")))
sketch2.addConstraint(Sketcher.Constraint("Angle", 0, Q("-67.499998 deg")))
sketch2.addConstraint(Sketcher.Constraint("Distance", 0, Q("0.05 in")))
sketch2.addConstraint(Sketcher.Constraint("Angle", 2, Q("123.750003 deg")))
sketch2.addConstraint(Sketcher.Constraint("DistanceY", 4, 2, -1, 1, Q("0.375 in")))
sketch2.addConstraint(Sketcher.Constraint("Radius", 3, 8.255082))
sketch2.addConstraint(Sketcher.Constraint("Radius", 5, 9.524921))
sketch2.addConstraint(Sketcher.Constraint("Radius", 7, 8.254951))
sketch2.addConstraint(Sketcher.Constraint("Radius", 10, 9.52489))
sketch2.addConstraint(Sketcher.Constraint("Radius", 1, 9.525023))
sketch2.addConstraint(Sketcher.Constraint("Radius", 12, 8.255107))
sketch2.addConstraint(Sketcher.Constraint("DistanceX", -1, 1, 0, 2, 3.64506))
sketch2.addConstraint(Sketcher.Constraint("DistanceY", 1, 2, -1, 1, 7.919748))
sketch2.addConstraint(Sketcher.Constraint("DistanceY", 5, 2, -1, 1, 9.34198))
sketch2.addConstraint(Sketcher.Constraint("DistanceX", -1, 1, 6, 2, 1.610471))
sketch2.addConstraint(Sketcher.Constraint("DistanceX", -1, 1, 9, 2, 6.735192))
sketch2.addConstraint(Sketcher.Constraint("DistanceX", -1, 1, 11, 2, 6.863782))
sketch2.addConstraint(Sketcher.Constraint("DistanceY", 12, 1, -1, 1, 3.159052))
sketch2.addConstraint(Sketcher.Constraint("DistanceX", -1, 1, 14, 2, 9.34198))
pocket1 = doc.addObject("PartDesign::Pocket", "Pocket")
body.addObject(pocket1)
pocket1.Profile = sketch2
pocket1.Length = 36.581717
pocket1.Reversed = True

doc.recompute()
